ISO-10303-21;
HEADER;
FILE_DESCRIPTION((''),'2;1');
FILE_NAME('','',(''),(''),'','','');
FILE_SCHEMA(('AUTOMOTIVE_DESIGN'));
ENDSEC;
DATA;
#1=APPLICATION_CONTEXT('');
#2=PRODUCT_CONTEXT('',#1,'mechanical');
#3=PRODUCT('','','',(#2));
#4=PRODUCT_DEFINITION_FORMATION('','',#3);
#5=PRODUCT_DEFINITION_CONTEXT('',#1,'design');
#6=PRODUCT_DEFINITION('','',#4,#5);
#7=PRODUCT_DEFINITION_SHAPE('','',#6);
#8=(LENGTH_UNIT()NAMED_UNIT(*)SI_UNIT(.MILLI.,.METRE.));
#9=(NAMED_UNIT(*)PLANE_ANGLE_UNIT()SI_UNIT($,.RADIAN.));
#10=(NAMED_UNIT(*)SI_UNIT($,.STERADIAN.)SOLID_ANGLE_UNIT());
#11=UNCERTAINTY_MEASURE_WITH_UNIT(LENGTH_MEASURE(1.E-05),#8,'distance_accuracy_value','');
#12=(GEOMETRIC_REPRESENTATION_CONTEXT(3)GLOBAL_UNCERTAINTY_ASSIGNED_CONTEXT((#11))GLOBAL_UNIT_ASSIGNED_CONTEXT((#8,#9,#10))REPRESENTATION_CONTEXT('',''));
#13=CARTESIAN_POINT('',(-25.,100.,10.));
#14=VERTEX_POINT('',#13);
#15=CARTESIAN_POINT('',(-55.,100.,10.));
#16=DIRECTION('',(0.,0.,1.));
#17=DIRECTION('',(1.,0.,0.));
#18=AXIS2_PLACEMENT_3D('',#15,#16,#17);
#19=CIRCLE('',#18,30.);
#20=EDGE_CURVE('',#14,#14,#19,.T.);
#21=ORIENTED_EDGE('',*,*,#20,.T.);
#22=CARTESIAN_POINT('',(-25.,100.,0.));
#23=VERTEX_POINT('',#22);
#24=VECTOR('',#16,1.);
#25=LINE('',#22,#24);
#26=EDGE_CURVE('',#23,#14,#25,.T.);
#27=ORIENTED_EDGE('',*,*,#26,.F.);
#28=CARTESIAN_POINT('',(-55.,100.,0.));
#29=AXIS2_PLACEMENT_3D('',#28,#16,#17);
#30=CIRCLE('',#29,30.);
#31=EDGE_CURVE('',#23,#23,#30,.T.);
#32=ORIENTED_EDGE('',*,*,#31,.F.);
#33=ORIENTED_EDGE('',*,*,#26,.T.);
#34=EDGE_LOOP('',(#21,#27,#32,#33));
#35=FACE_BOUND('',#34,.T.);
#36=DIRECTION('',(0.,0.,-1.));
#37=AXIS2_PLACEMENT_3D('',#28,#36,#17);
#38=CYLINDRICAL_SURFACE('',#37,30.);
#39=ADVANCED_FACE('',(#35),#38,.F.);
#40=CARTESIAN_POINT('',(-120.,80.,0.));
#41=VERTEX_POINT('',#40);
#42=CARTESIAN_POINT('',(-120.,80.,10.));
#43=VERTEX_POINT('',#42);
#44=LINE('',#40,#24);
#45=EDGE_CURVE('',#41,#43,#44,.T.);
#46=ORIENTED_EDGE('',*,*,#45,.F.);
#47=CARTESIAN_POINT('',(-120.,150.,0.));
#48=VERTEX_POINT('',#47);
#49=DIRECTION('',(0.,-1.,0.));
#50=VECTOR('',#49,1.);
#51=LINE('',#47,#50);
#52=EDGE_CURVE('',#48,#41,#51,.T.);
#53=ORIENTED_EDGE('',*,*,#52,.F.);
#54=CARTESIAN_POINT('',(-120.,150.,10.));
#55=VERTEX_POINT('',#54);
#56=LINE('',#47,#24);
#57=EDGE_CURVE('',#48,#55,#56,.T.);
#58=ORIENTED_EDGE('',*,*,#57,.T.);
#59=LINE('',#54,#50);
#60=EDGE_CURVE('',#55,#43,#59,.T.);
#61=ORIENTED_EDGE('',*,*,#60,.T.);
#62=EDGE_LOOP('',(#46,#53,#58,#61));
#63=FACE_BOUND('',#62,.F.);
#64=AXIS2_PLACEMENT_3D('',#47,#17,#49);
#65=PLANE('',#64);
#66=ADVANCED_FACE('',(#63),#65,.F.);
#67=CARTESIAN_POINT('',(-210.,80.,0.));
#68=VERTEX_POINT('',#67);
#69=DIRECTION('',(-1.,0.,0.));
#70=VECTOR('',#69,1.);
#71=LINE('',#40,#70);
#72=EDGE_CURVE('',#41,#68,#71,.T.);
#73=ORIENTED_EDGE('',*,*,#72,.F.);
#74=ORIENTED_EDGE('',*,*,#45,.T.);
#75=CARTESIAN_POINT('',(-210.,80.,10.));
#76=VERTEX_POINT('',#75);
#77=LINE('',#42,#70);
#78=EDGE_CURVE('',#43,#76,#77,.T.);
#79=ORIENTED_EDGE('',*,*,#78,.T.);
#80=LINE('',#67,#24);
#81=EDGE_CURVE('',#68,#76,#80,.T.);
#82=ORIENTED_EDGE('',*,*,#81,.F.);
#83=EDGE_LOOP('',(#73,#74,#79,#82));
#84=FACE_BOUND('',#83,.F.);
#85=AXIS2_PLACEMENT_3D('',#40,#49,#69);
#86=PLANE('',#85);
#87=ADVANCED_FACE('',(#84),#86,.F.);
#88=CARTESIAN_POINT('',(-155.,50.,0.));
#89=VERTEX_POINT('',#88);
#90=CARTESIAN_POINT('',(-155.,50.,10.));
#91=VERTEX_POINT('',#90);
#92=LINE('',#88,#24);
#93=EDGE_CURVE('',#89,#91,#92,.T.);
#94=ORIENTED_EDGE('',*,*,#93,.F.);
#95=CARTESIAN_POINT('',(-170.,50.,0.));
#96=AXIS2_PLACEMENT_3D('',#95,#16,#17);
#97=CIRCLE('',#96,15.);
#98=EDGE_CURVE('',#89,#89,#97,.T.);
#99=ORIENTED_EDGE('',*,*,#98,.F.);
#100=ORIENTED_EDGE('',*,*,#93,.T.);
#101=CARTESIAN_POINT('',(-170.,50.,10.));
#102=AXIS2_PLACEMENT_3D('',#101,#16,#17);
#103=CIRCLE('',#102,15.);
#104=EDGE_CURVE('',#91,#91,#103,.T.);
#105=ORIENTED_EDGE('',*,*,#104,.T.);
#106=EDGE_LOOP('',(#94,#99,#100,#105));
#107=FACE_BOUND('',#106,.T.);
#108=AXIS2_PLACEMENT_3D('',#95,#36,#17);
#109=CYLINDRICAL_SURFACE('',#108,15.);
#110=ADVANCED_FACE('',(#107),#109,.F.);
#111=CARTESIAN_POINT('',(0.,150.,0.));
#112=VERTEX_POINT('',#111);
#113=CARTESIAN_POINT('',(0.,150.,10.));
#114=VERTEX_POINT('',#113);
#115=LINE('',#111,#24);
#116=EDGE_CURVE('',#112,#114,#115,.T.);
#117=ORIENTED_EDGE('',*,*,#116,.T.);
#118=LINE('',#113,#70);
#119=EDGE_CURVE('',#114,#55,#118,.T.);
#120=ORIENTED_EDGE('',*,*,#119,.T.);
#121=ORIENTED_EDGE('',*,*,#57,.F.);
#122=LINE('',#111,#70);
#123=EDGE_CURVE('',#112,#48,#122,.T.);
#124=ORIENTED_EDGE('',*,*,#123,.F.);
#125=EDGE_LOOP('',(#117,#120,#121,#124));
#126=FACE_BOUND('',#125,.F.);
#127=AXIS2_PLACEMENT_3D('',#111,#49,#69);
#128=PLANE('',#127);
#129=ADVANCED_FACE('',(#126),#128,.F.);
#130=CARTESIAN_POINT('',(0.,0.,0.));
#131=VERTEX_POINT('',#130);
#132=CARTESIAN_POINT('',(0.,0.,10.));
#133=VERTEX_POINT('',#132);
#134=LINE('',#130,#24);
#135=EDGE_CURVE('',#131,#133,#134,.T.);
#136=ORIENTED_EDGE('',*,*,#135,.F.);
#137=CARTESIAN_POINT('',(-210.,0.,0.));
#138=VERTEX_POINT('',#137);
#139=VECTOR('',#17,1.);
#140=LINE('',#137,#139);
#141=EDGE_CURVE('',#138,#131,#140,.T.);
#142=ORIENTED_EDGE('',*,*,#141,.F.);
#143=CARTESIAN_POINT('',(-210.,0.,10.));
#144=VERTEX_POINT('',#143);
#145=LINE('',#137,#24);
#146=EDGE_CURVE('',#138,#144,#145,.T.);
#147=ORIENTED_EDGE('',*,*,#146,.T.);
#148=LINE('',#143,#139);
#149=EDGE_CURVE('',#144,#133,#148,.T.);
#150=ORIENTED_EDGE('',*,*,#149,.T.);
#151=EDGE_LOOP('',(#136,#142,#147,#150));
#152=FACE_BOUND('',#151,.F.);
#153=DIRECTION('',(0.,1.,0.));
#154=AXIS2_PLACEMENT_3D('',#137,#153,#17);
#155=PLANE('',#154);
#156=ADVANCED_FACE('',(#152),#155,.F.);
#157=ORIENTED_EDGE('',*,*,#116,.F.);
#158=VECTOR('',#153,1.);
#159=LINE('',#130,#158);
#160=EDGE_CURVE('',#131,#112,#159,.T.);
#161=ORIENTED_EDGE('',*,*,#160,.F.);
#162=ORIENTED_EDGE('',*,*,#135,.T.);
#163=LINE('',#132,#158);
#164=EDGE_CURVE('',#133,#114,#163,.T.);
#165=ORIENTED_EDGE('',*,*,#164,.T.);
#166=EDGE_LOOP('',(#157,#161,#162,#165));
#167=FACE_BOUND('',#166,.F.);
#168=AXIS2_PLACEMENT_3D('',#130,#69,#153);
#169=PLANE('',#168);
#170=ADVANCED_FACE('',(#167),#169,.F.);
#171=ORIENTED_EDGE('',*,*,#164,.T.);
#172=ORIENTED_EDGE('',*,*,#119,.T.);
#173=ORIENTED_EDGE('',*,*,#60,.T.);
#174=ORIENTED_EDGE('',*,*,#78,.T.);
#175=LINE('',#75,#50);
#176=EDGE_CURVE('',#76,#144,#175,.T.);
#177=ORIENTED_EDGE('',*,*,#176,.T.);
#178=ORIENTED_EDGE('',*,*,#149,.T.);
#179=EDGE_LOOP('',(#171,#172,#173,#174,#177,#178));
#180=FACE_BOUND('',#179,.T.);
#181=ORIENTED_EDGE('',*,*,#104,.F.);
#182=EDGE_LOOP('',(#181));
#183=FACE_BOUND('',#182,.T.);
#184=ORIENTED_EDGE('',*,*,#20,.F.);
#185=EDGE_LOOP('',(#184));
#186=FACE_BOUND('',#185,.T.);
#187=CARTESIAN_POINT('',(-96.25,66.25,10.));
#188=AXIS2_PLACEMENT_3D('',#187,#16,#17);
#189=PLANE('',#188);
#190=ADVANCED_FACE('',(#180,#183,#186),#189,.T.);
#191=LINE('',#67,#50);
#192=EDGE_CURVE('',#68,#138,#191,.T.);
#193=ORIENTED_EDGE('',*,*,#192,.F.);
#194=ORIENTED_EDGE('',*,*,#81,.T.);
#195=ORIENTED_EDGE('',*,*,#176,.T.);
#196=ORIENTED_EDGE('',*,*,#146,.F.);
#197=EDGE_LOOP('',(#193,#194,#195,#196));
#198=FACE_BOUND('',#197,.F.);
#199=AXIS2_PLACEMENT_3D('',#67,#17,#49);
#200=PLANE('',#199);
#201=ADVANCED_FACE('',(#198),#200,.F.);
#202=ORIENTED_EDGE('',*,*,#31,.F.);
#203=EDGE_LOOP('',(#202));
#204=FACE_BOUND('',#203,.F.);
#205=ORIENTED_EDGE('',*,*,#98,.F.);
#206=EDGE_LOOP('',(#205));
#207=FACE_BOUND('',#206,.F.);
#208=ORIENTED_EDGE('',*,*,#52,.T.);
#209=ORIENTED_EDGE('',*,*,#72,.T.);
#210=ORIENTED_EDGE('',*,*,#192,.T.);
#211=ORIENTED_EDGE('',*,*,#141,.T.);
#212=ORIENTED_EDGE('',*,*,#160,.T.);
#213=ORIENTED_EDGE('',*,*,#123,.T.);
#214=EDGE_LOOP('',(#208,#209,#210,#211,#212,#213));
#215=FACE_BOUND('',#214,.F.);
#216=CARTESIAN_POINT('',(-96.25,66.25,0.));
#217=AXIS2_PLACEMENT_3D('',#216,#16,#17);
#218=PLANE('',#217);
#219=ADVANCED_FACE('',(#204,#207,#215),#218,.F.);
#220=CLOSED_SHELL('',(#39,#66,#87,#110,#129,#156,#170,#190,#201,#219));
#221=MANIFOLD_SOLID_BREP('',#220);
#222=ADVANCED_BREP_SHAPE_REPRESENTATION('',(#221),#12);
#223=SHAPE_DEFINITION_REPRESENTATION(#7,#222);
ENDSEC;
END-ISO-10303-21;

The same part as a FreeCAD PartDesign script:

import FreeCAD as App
import Part
import Sketcher

V = App.Vector
Q = App.Units.Quantity

doc = App.newDocument("Part")
params = doc.addObject("Spreadsheet::Sheet", "Params")
for row, (alias, value) in enumerate([
    ("sketch1_diameter", "30 mm"),
    ("sketch1_diameter2", "60 mm"),
    ("sketch1_width", "210 mm"),
    ("sketch1_width2", "120 mm"),
    ("sketch1_height", "150 mm"),
    ("pad1_length", "10 mm"),
], start=1):
    params.set(f"A{row}", alias)
    params.set(f"B{row}", "=" + value)
    params.setAlias(f"B{row}", alias)

body = doc.addObject("PartDesign::Body", "Body")

# Sketch on XY plane
sketch1 = body.newObject("Sketcher::SketchObject", "Sketch")
sketch1.AttachmentSupport = (doc.getObject("XY_Plane"), [""])
sketch1.MapMode = "FlatFace"
sketch1.addGeometry([
    Part.LineSegment(V(-210, 0, 0), V(0, 0, 0)),  # 0
    Part.LineSegment(V(0, 0, 0), V(0, 150, 0)),  # 1
    Part.LineSegment(V(0, 150, 0), V(-120, 150, 0)),  # 2
    Part.LineSegment(V(-120, 150, 0), V(-120, 80, 0)),  # 3
    Part.LineSegment(V(-120, 80, 0), V(-210, 80, 0)),  # 4
    Part.LineSegment(V(-210, 80, 0), V(-210, 0, 0)),  # 5
    Part.Circle(V(-170, 50, 0), V(0, 0, 1), 15),  # 6
    Part.Circle(V(-55, 100, 0), V(0, 0, 1), 30),  # 7
], False)
sketch1.addConstraint([
    Sketcher.Constraint("Coincident", 0, 2, 1, 1),
    Sketcher.Constraint("Coincident", 1, 2, 2, 1),
    Sketcher.Constraint("Coincident", 2, 2, 3, 1),
    Sketcher.Constraint("Coincident", 3, 2, 4, 1),
    Sketcher.Constraint("Coincident", 4, 2, 5, 1),
    Sketcher.Constraint("Coincident", 5, 2, 0, 1),
    Sketcher.Constraint("Horizontal", 0),
    Sketcher.Constraint("Vertical", 1),
    Sketcher.Constraint("Horizontal", 2),
    Sketcher.Constraint("Vertical", 3),
    Sketcher.Constraint("Horizontal", 4),
    Sketcher.Constraint("Vertical", 5),
    Sketcher.Constraint("Coincident", 0, 2, -1, 1),
    Sketcher.Constraint("Diameter", 6, Q("30 mm")),
    Sketcher.Constraint("Diameter", 7, Q("60 mm")),
    Sketcher.Constraint("DistanceX", 0, 1, 0, 2, Q("210 mm")),
    Sketcher.Constraint("DistanceX", 2, 2, 2, 1, Q("120 mm")),
    Sketcher.Constraint("DistanceY", 1, 1, 1, 2, Q("150 mm")),
    Sketcher.Constraint("DistanceY", 3, 2, 3, 1, Q("70 mm")),
    Sketcher.Constraint("DistanceX", 6, 3, -1, 1, Q("170 mm")),
    Sketcher.Constraint("DistanceY", -1, 1, 6, 3, Q("50 mm")),
    Sketcher.Constraint("DistanceX", 7, 3, -1, 1, Q("55 mm")),
    Sketcher.Constraint("DistanceY", -1, 1, 7, 3, Q("100 mm")),
])
sketch1.setExpression("Constraints[13]", "Params.sketch1_diameter")
sketch1.setExpression("Constraints[14]", "Params.sketch1_diameter2")
sketch1.setExpression("Constraints[15]", "Params.sketch1_width")
sketch1.setExpression("Constraints[16]", "Params.sketch1_width2")
sketch1.setExpression("Constraints[17]", "Params.sketch1_height")
pad1 = body.newObject("PartDesign::Pad", "Pad")
pad1.Profile = sketch1
pad1.setExpression("Length", "Params.pad1_length")

doc.recompute()
